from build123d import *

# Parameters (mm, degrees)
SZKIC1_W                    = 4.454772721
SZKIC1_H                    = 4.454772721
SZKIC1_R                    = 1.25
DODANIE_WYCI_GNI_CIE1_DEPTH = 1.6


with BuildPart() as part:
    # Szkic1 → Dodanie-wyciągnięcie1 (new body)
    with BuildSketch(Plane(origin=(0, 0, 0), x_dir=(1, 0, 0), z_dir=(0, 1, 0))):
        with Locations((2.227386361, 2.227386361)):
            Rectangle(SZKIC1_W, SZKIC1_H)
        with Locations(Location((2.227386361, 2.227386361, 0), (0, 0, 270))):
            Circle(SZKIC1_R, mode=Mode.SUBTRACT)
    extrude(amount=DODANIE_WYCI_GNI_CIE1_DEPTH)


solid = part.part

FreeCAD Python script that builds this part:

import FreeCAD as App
import Part
import Sketcher
Q = App.Units.Quantity


def add_polygon(sketch, points):
    """Adds a closed chain of lines whose ends are joined by coincident constraints."""
    first, n = sketch.GeometryCount, len(points)
    for a, b in zip(points, points[1:] + points[:1]):
        sketch.addGeometry(Part.LineSegment(App.Vector(*a, 0), App.Vector(*b, 0)), False)
    for i in range(n):
        sketch.addConstraint(Sketcher.Constraint("Coincident", first + i, 2, first + (i + 1) % n, 1))

doc = App.newDocument("Part")
body = doc.addObject("PartDesign::Body", "Body")

# Sketch on XZ plane
sketch1 = doc.addObject("Sketcher::SketchObject", "Sketch")
body.addObject(sketch1)
sketch1.AttachmentSupport = (doc.XZ_Plane, [""])
sketch1.MapMode = "FlatFace"
add_polygon(sketch1, [(0, -4.5), (0, 0), (4.5, 0), (4.5, -4.5)])  # lines 0-3
sketch1.addGeometry(Part.Circle(App.Vector(2.2, -2.2, 0), App.Vector(0, 0, 1), 1.2), False)  # 4
sketch1.addConstraint(Sketcher.Constraint("Vertical", 0))
sketch1.addConstraint(Sketcher.Constraint("Horizontal", 1))
sketch1.addConstraint(Sketcher.Constraint("Vertical", 2))
sketch1.addConstraint(Sketcher.Constraint("Horizontal", 3))
sketch1.addConstraint(Sketcher.Constraint("Coincident", 0, 2, -1, 1))
sketch1.addConstraint(Sketcher.Constraint("Equal", 3, 0))
sketch1.addConstraint(Sketcher.Constraint("Diameter", 4, Q("2.5 mm")))
sketch1.addConstraint(Sketcher.Constraint("DistanceX", 1, 1, 1, 2, Q("4.454773 mm")))
sketch1.addConstraint(Sketcher.Constraint("DistanceX", -1, 1, 4, 3, Q("2.227386 mm")))
sketch1.addConstraint(Sketcher.Constraint("DistanceY", 4, 3, -1, 1, Q("2.227386 mm")))
pad1 = doc.addObject("PartDesign::Pad", "Pad")
body.addObject(pad1)
pad1.Profile = sketch1
pad1.Length = 1.6
pad1.Reversed = True

doc.recompute()
